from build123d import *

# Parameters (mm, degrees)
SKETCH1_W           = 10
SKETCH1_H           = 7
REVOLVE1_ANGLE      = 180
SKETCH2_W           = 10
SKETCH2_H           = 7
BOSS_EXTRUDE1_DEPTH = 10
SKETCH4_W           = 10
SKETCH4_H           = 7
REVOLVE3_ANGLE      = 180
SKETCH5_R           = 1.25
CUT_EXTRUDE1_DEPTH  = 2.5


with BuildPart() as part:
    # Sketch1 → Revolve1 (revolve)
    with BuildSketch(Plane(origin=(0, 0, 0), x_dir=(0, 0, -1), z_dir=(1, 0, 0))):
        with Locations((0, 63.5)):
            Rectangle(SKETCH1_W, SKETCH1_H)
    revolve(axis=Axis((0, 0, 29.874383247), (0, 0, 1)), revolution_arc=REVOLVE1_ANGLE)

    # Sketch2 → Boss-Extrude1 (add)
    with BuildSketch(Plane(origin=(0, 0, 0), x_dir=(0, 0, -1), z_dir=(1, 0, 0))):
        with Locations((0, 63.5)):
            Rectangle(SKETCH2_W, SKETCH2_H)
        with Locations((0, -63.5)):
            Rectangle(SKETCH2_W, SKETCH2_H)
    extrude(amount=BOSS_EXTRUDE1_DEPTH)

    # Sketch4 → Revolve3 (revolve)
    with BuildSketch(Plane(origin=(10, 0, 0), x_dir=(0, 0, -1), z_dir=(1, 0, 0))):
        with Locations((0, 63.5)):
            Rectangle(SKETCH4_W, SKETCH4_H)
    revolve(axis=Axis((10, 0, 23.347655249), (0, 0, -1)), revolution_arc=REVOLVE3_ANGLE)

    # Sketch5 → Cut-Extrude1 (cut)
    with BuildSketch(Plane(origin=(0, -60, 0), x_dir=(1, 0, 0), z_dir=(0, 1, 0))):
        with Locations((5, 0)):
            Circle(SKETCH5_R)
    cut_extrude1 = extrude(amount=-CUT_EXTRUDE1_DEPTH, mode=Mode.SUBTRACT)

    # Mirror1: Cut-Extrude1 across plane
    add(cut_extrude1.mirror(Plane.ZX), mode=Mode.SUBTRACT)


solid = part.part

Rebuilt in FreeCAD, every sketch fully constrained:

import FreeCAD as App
import Part
import Sketcher
Q = App.Units.Quantity


def add_polygon(sketch, points):
    """Adds a closed chain of lines whose ends are joined by coincident constraints."""
    first, n = sketch.GeometryCount, len(points)
    for a, b in zip(points, points[1:] + points[:1]):
        sketch.addGeometry(Part.LineSegment(App.Vector(*a, 0), App.Vector(*b, 0)), False)
    for i in range(n):
        sketch.addConstraint(Sketcher.Constraint("Coincident", first + i, 2, first + (i + 1) % n, 1))

doc = App.newDocument("Part")
body = doc.addObject("PartDesign::Body", "Body")

sketch1 = body.newObject("Sketcher::SketchObject", "Sketch")
sketch1.AttachmentSupport = (doc.getObject("YZ_Plane"), [""])
sketch1.MapMode = "FlatFace"
add_polygon(sketch1, [(67, 5), (60, 5), (60, -5), (67, -5)])
sketch1.addConstraint(Sketcher.Constraint("Horizontal", 0))
sketch1.addConstraint(Sketcher.Constraint("Vertical", 1))
sketch1.addConstraint(Sketcher.Constraint("Horizontal", 2))
sketch1.addConstraint(Sketcher.Constraint("Vertical", 3))
sketch1.addConstraint(Sketcher.Constraint("DistanceX", 0, 2, 0, 1, Q("7 mm")))
sketch1.addConstraint(Sketcher.Constraint("DistanceY", 1, 2, 1, 1, Q("10 mm")))
sketch1.addConstraint(Sketcher.Constraint("DistanceX", -1, 1, 0, 2, Q("60 mm")))
sketch1.addConstraint(Sketcher.Constraint("DistanceY", -1, 1, 0, 2, Q("5 mm")))
revolution = body.newObject("PartDesign::Revolution", "Revolution")
revolution.Profile = sketch1
revolution.ReferenceAxis = (sketch1, ["V_Axis"])
revolution.Angle = 180

sketch2 = body.newObject("Sketcher::SketchObject", "Sketch001")
sketch2.AttachmentSupport = (doc.getObject("YZ_Plane"), [""])
sketch2.MapMode = "FlatFace"
add_polygon(sketch2, [(67, 5), (60, 5), (60, -5), (67, -5)])
add_polygon(sketch2, [(-60, 5), (-67, 5), (-67, -5), (-60, -5)])
sketch2.addConstraint(Sketcher.Constraint("Horizontal", 0))
sketch2.addConstraint(Sketcher.Constraint("Vertical", 1))
sketch2.addConstraint(Sketcher.Constraint("Horizontal", 2))
sketch2.addConstraint(Sketcher.Constraint("Vertical", 3))
sketch2.addConstraint(Sketcher.Constraint("Horizontal", 4))
sketch2.addConstraint(Sketcher.Constraint("Vertical", 5))
sketch2.addConstraint(Sketcher.Constraint("Horizontal", 6))
sketch2.addConstraint(Sketcher.Constraint("Vertical", 7))
sketch2.addConstraint(Sketcher.Constraint("Symmetric", 2, 2, 4, 2, -1, 1))
sketch2.addConstraint(Sketcher.Constraint("Symmetric", 0, 2, 6, 2, -1, 1))
sketch2.addConstraint(Sketcher.Constraint("Horizontal", 3, 2, 4, 2))
sketch2.addConstraint(Sketcher.Constraint("DistanceX", 0, 2, 0, 1, Q("7 mm")))
sketch2.addConstraint(Sketcher.Constraint("DistanceY", 1, 2, 1, 1, Q("10 mm")))
sketch2.addConstraint(Sketcher.Constraint("DistanceX", -1, 1, 0, 2, Q("60 mm")))
pad1 = body.newObject("PartDesign::Pad", "Pad")
pad1.Profile = sketch2
pad1.Length = 10

sketch3 = body.newObject("Sketcher::SketchObject", "Sketch002")
sketch3.AttachmentSupport = (doc.getObject("YZ_Plane"), [""])
sketch3.MapMode = "FlatFace"
sketch3.AttachmentOffset = App.Placement(App.Vector(0, 0, 10), App.Rotation())
add_polygon(sketch3, [(67, 5), (60, 5), (60, -5), (67, -5)])
sketch3.addConstraint(Sketcher.Constraint("Horizontal", 0))
sketch3.addConstraint(Sketcher.Constraint("Vertical", 1))
sketch3.addConstraint(Sketcher.Constraint("Horizontal", 2))
sketch3.addConstraint(Sketcher.Constraint("Vertical", 3))
sketch3.addConstraint(Sketcher.Constraint("DistanceX", 0, 2, 0, 1, Q("7 mm")))
sketch3.addConstraint(Sketcher.Constraint("DistanceY", 1, 2, 1, 1, Q("10 mm")))
sketch3.addConstraint(Sketcher.Constraint("DistanceX", -1, 1, 0, 2, Q("60 mm")))
sketch3.addConstraint(Sketcher.Constraint("DistanceY", -1, 1, 0, 2, Q("5 mm")))
revolution2 = body.newObject("PartDesign::Revolution", "Revolution001")
revolution2.Profile = sketch3
revolution2.ReferenceAxis = (sketch3, ["V_Axis"])
revolution2.Angle = 180
revolution2.Reversed = True

sketch4 = body.newObject("Sketcher::SketchObject", "Sketch003")
sketch4.AttachmentSupport = (doc.getObject("XZ_Plane"), [""])
sketch4.MapMode = "FlatFace"
sketch4.AttachmentOffset = App.Placement(App.Vector(0, 0, 60), App.Rotation())
sketch4.addGeometry(Part.Circle(App.Vector(5, 0, 0), App.Vector(0, 0, 1), 1.2), False)
sketch4.addConstraint(Sketcher.Constraint("PointOnObject", 0, 3, -1))
sketch4.addConstraint(Sketcher.Constraint("Diameter", 0, Q("2.5 mm")))
sketch4.addConstraint(Sketcher.Constraint("DistanceX", -1, 1, 0, 3, Q("5 mm")))
pocket1 = body.newObject("PartDesign::Pocket", "Pocket")
pocket1.Profile = sketch4
pocket1.Length = 2.5
pocket1.Reversed = True
doc.recompute()

mirrored = body.newObject("PartDesign::Mirrored", "Mirrored")
mirrored.Originals = [pocket1]
mirrored.MirrorPlane = (doc.getObject("XZ_Plane"), [""])
body.Tip = mirrored

doc.recompute()
